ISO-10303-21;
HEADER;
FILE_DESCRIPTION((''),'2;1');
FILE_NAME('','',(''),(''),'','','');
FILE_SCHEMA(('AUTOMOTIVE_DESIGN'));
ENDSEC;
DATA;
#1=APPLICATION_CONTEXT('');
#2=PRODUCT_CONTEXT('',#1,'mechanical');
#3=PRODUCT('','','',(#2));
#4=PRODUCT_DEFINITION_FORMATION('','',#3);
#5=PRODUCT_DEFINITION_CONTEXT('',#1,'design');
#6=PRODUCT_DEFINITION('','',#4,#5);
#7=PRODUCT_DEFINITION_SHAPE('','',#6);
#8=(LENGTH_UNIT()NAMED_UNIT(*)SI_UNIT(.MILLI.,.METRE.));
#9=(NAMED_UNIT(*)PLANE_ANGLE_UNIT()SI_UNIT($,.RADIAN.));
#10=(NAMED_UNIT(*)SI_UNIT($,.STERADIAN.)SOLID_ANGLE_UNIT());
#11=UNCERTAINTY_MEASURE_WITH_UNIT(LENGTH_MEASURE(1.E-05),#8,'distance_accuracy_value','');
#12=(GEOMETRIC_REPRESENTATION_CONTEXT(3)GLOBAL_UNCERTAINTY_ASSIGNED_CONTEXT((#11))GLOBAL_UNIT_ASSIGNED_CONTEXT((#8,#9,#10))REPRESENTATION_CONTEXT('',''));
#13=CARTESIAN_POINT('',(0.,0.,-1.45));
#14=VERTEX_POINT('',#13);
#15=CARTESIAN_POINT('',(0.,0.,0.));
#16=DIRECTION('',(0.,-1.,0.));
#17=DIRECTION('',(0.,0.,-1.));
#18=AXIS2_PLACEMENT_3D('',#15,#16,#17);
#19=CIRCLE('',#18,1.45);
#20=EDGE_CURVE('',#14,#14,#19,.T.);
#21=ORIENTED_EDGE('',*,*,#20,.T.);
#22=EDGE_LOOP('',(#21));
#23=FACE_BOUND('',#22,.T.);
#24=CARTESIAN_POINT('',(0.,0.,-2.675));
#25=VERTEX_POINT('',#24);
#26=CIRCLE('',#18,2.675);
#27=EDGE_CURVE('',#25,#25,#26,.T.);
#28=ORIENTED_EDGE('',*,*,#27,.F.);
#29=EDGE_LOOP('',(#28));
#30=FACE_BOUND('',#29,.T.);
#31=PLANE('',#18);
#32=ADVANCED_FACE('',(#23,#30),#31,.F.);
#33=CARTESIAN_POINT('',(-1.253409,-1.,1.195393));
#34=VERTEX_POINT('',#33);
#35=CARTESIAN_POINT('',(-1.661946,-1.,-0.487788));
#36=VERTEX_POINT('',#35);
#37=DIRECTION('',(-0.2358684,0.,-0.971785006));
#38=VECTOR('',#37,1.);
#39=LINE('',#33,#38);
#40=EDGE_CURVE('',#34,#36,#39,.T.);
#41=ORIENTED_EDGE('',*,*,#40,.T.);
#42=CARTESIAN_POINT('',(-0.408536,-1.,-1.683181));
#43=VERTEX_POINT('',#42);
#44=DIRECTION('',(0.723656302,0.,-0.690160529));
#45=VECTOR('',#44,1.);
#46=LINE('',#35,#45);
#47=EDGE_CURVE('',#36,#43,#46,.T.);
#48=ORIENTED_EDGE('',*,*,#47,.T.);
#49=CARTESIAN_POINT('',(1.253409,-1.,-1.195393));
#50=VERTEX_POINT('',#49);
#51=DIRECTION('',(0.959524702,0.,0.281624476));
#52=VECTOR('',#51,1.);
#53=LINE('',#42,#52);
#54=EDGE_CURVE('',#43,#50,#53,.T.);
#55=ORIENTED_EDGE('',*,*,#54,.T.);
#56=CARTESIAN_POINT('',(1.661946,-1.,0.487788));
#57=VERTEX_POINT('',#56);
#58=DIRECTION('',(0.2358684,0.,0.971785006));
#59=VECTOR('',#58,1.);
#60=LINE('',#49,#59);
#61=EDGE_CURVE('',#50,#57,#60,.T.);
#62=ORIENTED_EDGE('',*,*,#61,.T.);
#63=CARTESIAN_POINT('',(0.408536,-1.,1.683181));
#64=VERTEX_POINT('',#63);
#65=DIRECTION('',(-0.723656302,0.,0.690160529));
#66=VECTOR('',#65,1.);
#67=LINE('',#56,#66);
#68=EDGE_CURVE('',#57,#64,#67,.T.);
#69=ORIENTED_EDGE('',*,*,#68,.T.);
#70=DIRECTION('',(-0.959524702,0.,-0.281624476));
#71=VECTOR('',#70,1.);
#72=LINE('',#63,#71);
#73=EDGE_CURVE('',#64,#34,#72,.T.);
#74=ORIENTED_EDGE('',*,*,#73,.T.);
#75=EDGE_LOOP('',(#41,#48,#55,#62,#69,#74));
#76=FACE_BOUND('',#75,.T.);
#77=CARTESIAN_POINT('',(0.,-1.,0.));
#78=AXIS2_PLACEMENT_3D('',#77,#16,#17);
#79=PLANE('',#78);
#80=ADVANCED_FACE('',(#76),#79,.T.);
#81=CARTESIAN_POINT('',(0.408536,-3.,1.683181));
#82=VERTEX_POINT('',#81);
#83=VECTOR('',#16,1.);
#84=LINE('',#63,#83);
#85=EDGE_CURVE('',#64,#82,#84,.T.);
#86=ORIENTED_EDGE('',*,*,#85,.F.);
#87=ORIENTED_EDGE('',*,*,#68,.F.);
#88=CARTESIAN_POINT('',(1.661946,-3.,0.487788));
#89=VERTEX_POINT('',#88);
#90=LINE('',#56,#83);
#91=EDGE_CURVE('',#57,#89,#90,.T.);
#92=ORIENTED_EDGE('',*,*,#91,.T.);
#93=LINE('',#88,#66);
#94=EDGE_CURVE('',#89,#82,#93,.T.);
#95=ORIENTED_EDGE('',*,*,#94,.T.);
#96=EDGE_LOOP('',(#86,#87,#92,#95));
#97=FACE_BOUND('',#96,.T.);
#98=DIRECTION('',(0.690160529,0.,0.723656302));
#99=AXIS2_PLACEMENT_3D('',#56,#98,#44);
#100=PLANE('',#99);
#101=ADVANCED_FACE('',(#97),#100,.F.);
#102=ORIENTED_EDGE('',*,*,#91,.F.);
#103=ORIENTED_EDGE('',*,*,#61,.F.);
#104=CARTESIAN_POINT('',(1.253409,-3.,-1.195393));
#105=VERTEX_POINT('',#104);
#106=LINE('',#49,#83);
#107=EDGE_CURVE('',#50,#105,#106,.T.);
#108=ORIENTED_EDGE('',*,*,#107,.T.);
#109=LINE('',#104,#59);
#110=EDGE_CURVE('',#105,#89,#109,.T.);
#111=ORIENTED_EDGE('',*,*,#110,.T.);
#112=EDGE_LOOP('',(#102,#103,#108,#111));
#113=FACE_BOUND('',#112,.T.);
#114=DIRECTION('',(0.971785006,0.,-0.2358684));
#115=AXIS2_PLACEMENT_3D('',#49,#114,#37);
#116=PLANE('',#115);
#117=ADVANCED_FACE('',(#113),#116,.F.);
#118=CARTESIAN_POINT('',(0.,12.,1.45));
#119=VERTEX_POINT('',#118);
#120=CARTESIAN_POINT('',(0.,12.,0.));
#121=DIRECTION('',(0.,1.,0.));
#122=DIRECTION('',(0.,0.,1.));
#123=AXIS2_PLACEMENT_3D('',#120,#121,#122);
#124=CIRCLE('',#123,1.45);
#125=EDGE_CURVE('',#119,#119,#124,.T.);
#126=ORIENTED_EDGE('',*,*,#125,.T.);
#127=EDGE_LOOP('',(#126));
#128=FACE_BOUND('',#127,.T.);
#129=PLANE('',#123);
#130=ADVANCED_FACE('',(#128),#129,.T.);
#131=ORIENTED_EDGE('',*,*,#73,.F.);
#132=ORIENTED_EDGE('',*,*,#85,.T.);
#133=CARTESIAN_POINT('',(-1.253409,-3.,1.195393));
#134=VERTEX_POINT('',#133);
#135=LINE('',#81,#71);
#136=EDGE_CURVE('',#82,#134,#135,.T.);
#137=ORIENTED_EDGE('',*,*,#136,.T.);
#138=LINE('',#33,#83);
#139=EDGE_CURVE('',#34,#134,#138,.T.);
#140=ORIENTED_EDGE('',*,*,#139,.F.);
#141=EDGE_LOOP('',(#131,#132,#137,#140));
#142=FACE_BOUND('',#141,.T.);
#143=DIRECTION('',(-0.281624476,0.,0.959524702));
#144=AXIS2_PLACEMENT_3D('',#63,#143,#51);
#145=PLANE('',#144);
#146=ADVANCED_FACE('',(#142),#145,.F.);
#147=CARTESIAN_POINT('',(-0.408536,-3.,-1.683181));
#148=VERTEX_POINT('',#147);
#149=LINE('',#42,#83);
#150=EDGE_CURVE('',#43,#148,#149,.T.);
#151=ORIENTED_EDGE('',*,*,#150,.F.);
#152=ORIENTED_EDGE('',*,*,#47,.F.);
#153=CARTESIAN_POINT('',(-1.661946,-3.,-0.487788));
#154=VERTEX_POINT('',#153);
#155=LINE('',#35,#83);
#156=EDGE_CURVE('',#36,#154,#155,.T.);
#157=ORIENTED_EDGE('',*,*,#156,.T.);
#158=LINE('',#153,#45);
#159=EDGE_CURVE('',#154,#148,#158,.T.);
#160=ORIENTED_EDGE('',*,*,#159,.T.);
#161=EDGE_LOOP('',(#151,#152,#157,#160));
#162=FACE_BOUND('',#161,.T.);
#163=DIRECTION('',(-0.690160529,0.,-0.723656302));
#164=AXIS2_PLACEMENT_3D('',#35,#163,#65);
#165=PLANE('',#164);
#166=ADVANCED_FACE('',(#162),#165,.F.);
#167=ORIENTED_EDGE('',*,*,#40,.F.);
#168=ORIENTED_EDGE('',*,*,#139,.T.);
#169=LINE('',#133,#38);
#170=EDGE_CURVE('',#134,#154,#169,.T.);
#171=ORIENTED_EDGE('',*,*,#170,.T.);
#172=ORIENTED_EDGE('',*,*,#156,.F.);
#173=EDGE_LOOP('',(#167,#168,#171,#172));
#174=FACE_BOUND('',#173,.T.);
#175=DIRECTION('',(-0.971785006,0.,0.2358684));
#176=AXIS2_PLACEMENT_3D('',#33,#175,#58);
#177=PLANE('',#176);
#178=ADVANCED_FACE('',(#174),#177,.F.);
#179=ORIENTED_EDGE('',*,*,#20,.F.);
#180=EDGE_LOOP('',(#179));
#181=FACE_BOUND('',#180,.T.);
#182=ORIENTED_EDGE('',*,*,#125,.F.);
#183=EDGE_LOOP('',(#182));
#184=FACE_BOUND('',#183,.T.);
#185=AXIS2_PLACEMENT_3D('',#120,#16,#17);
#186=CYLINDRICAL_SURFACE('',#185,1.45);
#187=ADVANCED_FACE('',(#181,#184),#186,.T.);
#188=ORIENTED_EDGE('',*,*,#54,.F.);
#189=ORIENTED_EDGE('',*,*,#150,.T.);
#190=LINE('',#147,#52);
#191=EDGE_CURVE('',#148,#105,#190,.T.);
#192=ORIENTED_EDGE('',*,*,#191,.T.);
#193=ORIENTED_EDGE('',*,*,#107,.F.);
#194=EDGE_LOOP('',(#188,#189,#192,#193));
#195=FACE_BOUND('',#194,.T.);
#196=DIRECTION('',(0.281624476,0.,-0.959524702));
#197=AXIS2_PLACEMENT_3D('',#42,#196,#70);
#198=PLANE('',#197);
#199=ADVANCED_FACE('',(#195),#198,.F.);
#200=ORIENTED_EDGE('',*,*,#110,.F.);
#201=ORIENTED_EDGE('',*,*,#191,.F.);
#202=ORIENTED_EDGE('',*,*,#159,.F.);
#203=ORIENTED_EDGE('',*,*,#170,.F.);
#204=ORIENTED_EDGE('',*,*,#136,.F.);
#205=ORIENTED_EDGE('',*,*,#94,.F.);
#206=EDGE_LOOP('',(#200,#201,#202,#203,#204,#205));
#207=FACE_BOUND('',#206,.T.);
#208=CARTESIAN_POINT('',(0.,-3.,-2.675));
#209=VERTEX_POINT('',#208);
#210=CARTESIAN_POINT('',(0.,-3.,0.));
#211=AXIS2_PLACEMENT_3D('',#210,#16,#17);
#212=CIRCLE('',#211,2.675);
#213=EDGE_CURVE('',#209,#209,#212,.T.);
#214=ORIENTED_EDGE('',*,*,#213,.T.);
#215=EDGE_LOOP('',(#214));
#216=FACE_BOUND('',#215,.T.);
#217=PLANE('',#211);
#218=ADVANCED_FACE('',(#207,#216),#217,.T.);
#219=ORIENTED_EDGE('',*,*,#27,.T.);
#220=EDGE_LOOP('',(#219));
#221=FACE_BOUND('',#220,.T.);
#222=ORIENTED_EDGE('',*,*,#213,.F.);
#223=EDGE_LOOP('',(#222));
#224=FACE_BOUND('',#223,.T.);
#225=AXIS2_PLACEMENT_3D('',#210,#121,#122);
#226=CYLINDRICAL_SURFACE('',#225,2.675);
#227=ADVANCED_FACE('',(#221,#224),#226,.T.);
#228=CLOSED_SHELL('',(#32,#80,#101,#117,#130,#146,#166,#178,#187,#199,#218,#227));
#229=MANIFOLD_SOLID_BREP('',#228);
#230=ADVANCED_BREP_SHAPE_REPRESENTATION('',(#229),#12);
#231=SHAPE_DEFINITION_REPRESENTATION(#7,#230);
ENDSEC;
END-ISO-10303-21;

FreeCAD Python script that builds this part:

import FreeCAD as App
import Part
import Sketcher
from FreeCAD import Vector
Q = App.Units.Quantity

doc = App.newDocument("Part")
body = doc.addObject("PartDesign::Body", "Body")

sketch1 = body.newObject("Sketcher::SketchObject", "Sketch")
sketch1.AttachmentSupport = (doc.getObject("XZ_Plane"), [""])
sketch1.MapMode = "FlatFace"
sketch1.addGeometry(Part.Circle(Vector(0, 0, 0), Vector(0, 0, 1), 1.4), False)
sketch1.addConstraint([
    Sketcher.Constraint("Coincident", 0, 3, -1, 1),
    Sketcher.Constraint("Diameter", 0, Q("2.9 mm")),
])
pad1 = body.newObject("PartDesign::Pad", "Pad")
pad1.Profile = sketch1
pad1.Length = 12
pad1.Reversed = True

sketch2 = body.newObject("Sketcher::SketchObject", "Sketch001")
sketch2.AttachmentSupport = (doc.getObject("XZ_Plane"), [""])
sketch2.MapMode = "FlatFace"
sketch2.addGeometry(Part.Circle(Vector(0, 0, 0), Vector(0, 0, 1), 2.7), False)
sketch2.addConstraint([
    Sketcher.Constraint("Coincident", 0, 3, -1, 1),
    Sketcher.Constraint("Diameter", 0, Q("5.35 mm")),
])
pad2 = body.newObject("PartDesign::Pad", "Pad001")
pad2.Profile = sketch2
pad2.Length = 3

sketch3 = body.newObject("Sketcher::SketchObject", "Sketch002")
sketch3.AttachmentSupport = (doc.getObject("XZ_Plane"), [""])
sketch3.MapMode = "FlatFace"
sketch3.AttachmentOffset = App.Placement(Vector(0, 0, 3), App.Rotation())
sketch3.addGeometry([
    Part.LineSegment(Vector(1.7, 0.5, 0), Vector(0.4, 1.7, 0)),
    Part.LineSegment(Vector(0.4, 1.7, 0), Vector(-1.3, 1.2, 0)),
    Part.LineSegment(Vector(-1.3, 1.2, 0), Vector(-1.7, -0.5, 0)),
    Part.LineSegment(Vector(-1.7, -0.5, 0), Vector(-0.4, -1.7, 0)),
    Part.LineSegment(Vector(-0.4, -1.7, 0), Vector(1.3, -1.2, 0)),
    Part.LineSegment(Vector(1.3, -1.2, 0), Vector(1.7, 0.5, 0)),
], False)
sketch3.addConstraint([
    Sketcher.Constraint("Coincident", 0, 2, 1, 1),
    Sketcher.Constraint("Coincident", 1, 2, 2, 1),
    Sketcher.Constraint("Coincident", 2, 2, 3, 1),
    Sketcher.Constraint("Coincident", 3, 2, 4, 1),
    Sketcher.Constraint("Coincident", 4, 2, 5, 1),
    Sketcher.Constraint("Coincident", 5, 2, 0, 1),
    Sketcher.Constraint("Symmetric", 0, 2, 3, 2, -1, 1),
    Sketcher.Constraint("Symmetric", 1, 2, 4, 2, -1, 1),
    Sketcher.Constraint("Symmetric", 2, 2, 5, 2, -1, 1),
    Sketcher.Constraint("Equal", 0, 1),
    Sketcher.Constraint("Equal", 1, 2),
    Sketcher.Constraint("Distance", 0, Q("1.732051 mm")),
    Sketcher.Constraint("DistanceY", -1, 1, 0, 2, Q("1.683181 mm")),
    Sketcher.Constraint("DistanceX", 1, 2, -1, 1, Q("1.253409 mm")),
    Sketcher.Constraint("DistanceY", 2, 2, 1, 2, Q("1.683181 mm")),
])
pocket1 = body.newObject("PartDesign::Pocket", "Pocket")
pocket1.Profile = sketch3
pocket1.Length = 2

doc.recompute()
